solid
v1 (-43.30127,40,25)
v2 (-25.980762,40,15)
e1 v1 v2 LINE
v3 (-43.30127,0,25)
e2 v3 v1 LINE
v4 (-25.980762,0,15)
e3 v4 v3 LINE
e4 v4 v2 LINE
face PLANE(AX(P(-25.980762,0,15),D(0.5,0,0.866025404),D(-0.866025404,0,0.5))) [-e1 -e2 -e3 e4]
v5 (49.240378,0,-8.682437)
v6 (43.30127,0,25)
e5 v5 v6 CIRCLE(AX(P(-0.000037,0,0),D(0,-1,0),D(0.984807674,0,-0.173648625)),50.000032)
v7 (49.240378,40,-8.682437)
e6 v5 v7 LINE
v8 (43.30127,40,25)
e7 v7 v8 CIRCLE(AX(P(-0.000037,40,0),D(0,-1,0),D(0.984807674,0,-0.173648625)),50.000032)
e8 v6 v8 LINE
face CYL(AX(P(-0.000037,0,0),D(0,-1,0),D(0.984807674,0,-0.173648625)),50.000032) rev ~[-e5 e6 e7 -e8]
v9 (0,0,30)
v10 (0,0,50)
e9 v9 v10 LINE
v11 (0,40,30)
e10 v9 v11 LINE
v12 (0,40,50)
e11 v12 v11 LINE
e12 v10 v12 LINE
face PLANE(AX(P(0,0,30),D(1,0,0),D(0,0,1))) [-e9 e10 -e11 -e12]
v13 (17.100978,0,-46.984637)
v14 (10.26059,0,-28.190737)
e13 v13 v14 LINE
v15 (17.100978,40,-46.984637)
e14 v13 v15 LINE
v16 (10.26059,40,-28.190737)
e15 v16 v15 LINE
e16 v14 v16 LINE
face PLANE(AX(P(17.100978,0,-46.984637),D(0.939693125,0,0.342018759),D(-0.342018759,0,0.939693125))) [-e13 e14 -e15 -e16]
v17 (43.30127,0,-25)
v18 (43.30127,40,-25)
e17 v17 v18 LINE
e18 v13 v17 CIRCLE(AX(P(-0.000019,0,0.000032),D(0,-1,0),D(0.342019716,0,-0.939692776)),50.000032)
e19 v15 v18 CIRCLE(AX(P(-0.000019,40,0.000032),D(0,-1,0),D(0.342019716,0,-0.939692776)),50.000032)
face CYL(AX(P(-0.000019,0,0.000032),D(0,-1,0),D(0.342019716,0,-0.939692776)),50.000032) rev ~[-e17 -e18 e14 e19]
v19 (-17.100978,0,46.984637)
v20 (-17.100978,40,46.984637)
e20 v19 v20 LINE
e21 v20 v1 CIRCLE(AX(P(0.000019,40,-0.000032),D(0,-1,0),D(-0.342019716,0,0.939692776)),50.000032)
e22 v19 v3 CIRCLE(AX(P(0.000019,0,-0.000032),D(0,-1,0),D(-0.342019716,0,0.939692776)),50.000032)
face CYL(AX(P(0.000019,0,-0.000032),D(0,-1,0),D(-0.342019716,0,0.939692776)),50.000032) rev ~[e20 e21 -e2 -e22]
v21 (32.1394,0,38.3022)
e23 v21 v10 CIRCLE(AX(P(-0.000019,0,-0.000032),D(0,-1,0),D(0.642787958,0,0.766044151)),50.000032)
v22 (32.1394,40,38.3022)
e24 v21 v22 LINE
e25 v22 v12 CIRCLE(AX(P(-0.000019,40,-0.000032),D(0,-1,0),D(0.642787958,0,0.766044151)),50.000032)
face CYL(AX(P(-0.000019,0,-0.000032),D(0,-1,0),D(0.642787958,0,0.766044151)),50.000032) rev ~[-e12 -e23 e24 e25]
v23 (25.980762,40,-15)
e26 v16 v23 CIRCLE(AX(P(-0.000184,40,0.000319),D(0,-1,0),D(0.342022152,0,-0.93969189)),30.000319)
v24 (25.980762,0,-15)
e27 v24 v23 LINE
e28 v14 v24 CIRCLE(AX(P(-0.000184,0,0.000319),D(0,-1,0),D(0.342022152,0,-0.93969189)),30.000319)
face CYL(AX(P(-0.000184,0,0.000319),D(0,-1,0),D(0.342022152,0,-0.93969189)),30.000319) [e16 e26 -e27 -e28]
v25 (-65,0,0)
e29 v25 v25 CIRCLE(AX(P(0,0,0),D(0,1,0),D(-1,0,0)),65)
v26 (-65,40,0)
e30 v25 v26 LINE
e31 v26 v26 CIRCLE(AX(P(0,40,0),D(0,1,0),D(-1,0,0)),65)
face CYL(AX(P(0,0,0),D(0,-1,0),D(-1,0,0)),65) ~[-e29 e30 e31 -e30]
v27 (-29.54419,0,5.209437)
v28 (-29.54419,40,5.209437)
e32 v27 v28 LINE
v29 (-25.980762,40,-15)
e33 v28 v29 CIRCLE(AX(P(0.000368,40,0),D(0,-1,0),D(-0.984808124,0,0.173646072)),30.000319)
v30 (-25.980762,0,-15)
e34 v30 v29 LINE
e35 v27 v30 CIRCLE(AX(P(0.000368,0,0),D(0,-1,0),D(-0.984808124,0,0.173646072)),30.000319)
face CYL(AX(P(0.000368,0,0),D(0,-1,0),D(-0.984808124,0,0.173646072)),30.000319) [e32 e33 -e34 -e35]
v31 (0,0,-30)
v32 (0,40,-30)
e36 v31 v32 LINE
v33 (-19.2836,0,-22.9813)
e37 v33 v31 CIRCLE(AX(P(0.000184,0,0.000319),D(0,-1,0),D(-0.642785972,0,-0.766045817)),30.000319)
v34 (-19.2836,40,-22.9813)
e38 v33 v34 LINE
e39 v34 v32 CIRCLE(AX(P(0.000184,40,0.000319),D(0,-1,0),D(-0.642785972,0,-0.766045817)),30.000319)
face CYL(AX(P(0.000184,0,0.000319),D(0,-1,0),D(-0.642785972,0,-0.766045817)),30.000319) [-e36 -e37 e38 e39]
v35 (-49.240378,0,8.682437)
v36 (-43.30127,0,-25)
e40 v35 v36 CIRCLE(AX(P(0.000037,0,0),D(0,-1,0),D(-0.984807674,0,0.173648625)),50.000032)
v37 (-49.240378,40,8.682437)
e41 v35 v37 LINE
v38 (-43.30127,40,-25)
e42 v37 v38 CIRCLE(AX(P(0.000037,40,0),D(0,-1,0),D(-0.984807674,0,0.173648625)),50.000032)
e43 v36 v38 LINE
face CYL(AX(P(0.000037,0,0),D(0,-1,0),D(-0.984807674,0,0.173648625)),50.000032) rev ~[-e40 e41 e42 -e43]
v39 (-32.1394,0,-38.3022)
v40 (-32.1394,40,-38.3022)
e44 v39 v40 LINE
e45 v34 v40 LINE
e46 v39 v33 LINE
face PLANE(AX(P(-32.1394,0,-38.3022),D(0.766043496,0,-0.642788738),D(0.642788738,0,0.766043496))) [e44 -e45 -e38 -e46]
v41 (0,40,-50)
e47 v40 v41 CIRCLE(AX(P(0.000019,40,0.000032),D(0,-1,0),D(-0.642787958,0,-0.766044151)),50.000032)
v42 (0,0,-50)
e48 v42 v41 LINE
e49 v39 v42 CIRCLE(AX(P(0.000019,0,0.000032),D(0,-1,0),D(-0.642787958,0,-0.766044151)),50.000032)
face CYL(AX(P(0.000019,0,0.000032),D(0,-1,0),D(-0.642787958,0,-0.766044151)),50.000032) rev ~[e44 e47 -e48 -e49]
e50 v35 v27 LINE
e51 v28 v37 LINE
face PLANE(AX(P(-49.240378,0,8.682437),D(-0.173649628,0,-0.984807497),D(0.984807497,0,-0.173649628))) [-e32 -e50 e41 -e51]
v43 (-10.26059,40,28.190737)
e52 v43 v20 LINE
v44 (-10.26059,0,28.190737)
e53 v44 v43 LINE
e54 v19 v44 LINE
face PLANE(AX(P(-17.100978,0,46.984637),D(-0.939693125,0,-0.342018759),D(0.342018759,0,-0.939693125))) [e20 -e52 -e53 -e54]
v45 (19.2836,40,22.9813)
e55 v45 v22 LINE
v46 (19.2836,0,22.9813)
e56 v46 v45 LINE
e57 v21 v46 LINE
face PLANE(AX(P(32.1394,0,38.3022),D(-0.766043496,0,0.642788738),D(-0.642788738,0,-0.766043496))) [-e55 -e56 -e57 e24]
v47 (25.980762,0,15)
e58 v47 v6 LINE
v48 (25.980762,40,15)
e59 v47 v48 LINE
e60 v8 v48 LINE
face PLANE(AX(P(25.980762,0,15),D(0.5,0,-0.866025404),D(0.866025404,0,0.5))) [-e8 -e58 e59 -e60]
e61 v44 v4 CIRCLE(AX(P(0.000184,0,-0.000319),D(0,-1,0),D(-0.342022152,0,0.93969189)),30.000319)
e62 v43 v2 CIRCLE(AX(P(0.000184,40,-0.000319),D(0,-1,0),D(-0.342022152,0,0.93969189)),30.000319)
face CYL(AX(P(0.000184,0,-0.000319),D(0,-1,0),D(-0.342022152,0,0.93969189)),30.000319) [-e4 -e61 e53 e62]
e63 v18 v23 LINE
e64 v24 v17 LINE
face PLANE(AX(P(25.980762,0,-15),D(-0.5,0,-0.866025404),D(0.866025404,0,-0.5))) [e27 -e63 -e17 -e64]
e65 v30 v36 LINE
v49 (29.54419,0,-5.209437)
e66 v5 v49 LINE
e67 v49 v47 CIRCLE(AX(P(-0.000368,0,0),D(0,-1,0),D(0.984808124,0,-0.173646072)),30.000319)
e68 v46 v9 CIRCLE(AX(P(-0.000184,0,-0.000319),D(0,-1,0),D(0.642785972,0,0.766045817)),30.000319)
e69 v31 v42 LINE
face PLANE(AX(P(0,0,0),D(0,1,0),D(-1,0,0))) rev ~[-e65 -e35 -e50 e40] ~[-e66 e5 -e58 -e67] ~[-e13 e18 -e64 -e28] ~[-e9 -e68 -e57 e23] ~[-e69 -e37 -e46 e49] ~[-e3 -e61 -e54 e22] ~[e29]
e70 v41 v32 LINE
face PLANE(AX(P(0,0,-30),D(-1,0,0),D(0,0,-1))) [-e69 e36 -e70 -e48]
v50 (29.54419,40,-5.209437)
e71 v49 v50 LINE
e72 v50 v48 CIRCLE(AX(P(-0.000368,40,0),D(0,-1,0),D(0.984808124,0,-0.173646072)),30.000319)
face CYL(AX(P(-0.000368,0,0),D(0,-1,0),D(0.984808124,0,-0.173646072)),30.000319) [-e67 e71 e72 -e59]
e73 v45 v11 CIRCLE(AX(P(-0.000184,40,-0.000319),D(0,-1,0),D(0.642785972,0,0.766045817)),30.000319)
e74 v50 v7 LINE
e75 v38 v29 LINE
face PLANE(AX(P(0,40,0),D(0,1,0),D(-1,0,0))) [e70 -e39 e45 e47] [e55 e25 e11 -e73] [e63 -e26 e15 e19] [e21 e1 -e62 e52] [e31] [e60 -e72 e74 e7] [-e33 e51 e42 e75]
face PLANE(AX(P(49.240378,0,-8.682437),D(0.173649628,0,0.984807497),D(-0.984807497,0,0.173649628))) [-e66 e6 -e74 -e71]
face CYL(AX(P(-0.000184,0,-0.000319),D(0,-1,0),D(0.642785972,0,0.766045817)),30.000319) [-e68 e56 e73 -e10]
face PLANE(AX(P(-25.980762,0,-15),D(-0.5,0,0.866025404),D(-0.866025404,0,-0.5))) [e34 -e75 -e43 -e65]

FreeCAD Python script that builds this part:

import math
import FreeCAD as App
import Part
import Sketcher
from FreeCAD import Vector
Q = App.Units.Quantity

doc = App.newDocument("Part")
body = doc.addObject("PartDesign::Body", "Body")

# Sketch on XZ plane
sketch1 = body.newObject("Sketcher::SketchObject", "Sketch")
sketch1.AttachmentSupport = (doc.getObject("XZ_Plane"), [""])
sketch1.MapMode = "FlatFace"
sketch1.addGeometry(Part.Circle(Vector(0, 0, 0), Vector(0, 0, 1), 65), False)
sketch1.addConstraint([
    Sketcher.Constraint("Coincident", 0, 3, -1, 1),
    Sketcher.Constraint("Diameter", 0, Q("130 mm")),
])
pad1 = body.newObject("PartDesign::Pad", "Pad")
pad1.Profile = sketch1
pad1.Length = 40
pad1.Reversed = True

# Sketch on XZ plane
sketch2 = body.newObject("Sketcher::SketchObject", "Sketch001")
sketch2.AttachmentSupport = (doc.getObject("XZ_Plane"), [""])
sketch2.MapMode = "FlatFace"
sketch2.addGeometry([
    Part.LineSegment(Vector(0, 50, 0), Vector(0, 30, 0)),
    Part.ArcOfCircle(Part.Circle(Vector(0, 0, 0), Vector(0, 0, 1), 30), math.radians(50), math.radians(90)),
    Part.LineSegment(Vector(19, 23, 0), Vector(32, 38, 0)),
    Part.ArcOfCircle(Part.Circle(Vector(0, 0, 0), Vector(0, 0, 1), 50), math.radians(50), math.radians(90)),
], False)
sketch2.addConstraint([
    Sketcher.Constraint("Coincident", 0, 2, 1, 2),
    Sketcher.Constraint("Coincident", 1, 1, 2, 1),
    Sketcher.Constraint("Coincident", 2, 2, 3, 1),
    Sketcher.Constraint("Coincident", 3, 2, 0, 1),
    Sketcher.Constraint("Vertical", 0),
    Sketcher.Constraint("Coincident", 1, 3, -1, 1),
    Sketcher.Constraint("Coincident", 3, 3, -1, 1),
    Sketcher.Constraint("PointOnObject", 0, 2, -2),
    Sketcher.Constraint("Radius", 1, Q("30 mm")),
    Sketcher.Constraint("Radius", 3, Q("50 mm")),
    Sketcher.Constraint("Angle", 2, Q("50 deg")),
    Sketcher.Constraint("DistanceX", -1, 1, 1, 1, Q("19.2836 mm")),
])
pocket1 = body.newObject("PartDesign::Pocket", "Pocket")
pocket1.Profile = sketch2
pocket1.Type = "ThroughAll"
doc.recompute()

polarpattern = body.newObject("PartDesign::PolarPattern", "PolarPattern")
polarpattern.Originals = [pocket1]
polarpattern.Axis = (doc.getObject("Y_Axis"), [""])
polarpattern.Angle = 360
polarpattern.Occurrences = 6
body.Tip = polarpattern

doc.recompute()
